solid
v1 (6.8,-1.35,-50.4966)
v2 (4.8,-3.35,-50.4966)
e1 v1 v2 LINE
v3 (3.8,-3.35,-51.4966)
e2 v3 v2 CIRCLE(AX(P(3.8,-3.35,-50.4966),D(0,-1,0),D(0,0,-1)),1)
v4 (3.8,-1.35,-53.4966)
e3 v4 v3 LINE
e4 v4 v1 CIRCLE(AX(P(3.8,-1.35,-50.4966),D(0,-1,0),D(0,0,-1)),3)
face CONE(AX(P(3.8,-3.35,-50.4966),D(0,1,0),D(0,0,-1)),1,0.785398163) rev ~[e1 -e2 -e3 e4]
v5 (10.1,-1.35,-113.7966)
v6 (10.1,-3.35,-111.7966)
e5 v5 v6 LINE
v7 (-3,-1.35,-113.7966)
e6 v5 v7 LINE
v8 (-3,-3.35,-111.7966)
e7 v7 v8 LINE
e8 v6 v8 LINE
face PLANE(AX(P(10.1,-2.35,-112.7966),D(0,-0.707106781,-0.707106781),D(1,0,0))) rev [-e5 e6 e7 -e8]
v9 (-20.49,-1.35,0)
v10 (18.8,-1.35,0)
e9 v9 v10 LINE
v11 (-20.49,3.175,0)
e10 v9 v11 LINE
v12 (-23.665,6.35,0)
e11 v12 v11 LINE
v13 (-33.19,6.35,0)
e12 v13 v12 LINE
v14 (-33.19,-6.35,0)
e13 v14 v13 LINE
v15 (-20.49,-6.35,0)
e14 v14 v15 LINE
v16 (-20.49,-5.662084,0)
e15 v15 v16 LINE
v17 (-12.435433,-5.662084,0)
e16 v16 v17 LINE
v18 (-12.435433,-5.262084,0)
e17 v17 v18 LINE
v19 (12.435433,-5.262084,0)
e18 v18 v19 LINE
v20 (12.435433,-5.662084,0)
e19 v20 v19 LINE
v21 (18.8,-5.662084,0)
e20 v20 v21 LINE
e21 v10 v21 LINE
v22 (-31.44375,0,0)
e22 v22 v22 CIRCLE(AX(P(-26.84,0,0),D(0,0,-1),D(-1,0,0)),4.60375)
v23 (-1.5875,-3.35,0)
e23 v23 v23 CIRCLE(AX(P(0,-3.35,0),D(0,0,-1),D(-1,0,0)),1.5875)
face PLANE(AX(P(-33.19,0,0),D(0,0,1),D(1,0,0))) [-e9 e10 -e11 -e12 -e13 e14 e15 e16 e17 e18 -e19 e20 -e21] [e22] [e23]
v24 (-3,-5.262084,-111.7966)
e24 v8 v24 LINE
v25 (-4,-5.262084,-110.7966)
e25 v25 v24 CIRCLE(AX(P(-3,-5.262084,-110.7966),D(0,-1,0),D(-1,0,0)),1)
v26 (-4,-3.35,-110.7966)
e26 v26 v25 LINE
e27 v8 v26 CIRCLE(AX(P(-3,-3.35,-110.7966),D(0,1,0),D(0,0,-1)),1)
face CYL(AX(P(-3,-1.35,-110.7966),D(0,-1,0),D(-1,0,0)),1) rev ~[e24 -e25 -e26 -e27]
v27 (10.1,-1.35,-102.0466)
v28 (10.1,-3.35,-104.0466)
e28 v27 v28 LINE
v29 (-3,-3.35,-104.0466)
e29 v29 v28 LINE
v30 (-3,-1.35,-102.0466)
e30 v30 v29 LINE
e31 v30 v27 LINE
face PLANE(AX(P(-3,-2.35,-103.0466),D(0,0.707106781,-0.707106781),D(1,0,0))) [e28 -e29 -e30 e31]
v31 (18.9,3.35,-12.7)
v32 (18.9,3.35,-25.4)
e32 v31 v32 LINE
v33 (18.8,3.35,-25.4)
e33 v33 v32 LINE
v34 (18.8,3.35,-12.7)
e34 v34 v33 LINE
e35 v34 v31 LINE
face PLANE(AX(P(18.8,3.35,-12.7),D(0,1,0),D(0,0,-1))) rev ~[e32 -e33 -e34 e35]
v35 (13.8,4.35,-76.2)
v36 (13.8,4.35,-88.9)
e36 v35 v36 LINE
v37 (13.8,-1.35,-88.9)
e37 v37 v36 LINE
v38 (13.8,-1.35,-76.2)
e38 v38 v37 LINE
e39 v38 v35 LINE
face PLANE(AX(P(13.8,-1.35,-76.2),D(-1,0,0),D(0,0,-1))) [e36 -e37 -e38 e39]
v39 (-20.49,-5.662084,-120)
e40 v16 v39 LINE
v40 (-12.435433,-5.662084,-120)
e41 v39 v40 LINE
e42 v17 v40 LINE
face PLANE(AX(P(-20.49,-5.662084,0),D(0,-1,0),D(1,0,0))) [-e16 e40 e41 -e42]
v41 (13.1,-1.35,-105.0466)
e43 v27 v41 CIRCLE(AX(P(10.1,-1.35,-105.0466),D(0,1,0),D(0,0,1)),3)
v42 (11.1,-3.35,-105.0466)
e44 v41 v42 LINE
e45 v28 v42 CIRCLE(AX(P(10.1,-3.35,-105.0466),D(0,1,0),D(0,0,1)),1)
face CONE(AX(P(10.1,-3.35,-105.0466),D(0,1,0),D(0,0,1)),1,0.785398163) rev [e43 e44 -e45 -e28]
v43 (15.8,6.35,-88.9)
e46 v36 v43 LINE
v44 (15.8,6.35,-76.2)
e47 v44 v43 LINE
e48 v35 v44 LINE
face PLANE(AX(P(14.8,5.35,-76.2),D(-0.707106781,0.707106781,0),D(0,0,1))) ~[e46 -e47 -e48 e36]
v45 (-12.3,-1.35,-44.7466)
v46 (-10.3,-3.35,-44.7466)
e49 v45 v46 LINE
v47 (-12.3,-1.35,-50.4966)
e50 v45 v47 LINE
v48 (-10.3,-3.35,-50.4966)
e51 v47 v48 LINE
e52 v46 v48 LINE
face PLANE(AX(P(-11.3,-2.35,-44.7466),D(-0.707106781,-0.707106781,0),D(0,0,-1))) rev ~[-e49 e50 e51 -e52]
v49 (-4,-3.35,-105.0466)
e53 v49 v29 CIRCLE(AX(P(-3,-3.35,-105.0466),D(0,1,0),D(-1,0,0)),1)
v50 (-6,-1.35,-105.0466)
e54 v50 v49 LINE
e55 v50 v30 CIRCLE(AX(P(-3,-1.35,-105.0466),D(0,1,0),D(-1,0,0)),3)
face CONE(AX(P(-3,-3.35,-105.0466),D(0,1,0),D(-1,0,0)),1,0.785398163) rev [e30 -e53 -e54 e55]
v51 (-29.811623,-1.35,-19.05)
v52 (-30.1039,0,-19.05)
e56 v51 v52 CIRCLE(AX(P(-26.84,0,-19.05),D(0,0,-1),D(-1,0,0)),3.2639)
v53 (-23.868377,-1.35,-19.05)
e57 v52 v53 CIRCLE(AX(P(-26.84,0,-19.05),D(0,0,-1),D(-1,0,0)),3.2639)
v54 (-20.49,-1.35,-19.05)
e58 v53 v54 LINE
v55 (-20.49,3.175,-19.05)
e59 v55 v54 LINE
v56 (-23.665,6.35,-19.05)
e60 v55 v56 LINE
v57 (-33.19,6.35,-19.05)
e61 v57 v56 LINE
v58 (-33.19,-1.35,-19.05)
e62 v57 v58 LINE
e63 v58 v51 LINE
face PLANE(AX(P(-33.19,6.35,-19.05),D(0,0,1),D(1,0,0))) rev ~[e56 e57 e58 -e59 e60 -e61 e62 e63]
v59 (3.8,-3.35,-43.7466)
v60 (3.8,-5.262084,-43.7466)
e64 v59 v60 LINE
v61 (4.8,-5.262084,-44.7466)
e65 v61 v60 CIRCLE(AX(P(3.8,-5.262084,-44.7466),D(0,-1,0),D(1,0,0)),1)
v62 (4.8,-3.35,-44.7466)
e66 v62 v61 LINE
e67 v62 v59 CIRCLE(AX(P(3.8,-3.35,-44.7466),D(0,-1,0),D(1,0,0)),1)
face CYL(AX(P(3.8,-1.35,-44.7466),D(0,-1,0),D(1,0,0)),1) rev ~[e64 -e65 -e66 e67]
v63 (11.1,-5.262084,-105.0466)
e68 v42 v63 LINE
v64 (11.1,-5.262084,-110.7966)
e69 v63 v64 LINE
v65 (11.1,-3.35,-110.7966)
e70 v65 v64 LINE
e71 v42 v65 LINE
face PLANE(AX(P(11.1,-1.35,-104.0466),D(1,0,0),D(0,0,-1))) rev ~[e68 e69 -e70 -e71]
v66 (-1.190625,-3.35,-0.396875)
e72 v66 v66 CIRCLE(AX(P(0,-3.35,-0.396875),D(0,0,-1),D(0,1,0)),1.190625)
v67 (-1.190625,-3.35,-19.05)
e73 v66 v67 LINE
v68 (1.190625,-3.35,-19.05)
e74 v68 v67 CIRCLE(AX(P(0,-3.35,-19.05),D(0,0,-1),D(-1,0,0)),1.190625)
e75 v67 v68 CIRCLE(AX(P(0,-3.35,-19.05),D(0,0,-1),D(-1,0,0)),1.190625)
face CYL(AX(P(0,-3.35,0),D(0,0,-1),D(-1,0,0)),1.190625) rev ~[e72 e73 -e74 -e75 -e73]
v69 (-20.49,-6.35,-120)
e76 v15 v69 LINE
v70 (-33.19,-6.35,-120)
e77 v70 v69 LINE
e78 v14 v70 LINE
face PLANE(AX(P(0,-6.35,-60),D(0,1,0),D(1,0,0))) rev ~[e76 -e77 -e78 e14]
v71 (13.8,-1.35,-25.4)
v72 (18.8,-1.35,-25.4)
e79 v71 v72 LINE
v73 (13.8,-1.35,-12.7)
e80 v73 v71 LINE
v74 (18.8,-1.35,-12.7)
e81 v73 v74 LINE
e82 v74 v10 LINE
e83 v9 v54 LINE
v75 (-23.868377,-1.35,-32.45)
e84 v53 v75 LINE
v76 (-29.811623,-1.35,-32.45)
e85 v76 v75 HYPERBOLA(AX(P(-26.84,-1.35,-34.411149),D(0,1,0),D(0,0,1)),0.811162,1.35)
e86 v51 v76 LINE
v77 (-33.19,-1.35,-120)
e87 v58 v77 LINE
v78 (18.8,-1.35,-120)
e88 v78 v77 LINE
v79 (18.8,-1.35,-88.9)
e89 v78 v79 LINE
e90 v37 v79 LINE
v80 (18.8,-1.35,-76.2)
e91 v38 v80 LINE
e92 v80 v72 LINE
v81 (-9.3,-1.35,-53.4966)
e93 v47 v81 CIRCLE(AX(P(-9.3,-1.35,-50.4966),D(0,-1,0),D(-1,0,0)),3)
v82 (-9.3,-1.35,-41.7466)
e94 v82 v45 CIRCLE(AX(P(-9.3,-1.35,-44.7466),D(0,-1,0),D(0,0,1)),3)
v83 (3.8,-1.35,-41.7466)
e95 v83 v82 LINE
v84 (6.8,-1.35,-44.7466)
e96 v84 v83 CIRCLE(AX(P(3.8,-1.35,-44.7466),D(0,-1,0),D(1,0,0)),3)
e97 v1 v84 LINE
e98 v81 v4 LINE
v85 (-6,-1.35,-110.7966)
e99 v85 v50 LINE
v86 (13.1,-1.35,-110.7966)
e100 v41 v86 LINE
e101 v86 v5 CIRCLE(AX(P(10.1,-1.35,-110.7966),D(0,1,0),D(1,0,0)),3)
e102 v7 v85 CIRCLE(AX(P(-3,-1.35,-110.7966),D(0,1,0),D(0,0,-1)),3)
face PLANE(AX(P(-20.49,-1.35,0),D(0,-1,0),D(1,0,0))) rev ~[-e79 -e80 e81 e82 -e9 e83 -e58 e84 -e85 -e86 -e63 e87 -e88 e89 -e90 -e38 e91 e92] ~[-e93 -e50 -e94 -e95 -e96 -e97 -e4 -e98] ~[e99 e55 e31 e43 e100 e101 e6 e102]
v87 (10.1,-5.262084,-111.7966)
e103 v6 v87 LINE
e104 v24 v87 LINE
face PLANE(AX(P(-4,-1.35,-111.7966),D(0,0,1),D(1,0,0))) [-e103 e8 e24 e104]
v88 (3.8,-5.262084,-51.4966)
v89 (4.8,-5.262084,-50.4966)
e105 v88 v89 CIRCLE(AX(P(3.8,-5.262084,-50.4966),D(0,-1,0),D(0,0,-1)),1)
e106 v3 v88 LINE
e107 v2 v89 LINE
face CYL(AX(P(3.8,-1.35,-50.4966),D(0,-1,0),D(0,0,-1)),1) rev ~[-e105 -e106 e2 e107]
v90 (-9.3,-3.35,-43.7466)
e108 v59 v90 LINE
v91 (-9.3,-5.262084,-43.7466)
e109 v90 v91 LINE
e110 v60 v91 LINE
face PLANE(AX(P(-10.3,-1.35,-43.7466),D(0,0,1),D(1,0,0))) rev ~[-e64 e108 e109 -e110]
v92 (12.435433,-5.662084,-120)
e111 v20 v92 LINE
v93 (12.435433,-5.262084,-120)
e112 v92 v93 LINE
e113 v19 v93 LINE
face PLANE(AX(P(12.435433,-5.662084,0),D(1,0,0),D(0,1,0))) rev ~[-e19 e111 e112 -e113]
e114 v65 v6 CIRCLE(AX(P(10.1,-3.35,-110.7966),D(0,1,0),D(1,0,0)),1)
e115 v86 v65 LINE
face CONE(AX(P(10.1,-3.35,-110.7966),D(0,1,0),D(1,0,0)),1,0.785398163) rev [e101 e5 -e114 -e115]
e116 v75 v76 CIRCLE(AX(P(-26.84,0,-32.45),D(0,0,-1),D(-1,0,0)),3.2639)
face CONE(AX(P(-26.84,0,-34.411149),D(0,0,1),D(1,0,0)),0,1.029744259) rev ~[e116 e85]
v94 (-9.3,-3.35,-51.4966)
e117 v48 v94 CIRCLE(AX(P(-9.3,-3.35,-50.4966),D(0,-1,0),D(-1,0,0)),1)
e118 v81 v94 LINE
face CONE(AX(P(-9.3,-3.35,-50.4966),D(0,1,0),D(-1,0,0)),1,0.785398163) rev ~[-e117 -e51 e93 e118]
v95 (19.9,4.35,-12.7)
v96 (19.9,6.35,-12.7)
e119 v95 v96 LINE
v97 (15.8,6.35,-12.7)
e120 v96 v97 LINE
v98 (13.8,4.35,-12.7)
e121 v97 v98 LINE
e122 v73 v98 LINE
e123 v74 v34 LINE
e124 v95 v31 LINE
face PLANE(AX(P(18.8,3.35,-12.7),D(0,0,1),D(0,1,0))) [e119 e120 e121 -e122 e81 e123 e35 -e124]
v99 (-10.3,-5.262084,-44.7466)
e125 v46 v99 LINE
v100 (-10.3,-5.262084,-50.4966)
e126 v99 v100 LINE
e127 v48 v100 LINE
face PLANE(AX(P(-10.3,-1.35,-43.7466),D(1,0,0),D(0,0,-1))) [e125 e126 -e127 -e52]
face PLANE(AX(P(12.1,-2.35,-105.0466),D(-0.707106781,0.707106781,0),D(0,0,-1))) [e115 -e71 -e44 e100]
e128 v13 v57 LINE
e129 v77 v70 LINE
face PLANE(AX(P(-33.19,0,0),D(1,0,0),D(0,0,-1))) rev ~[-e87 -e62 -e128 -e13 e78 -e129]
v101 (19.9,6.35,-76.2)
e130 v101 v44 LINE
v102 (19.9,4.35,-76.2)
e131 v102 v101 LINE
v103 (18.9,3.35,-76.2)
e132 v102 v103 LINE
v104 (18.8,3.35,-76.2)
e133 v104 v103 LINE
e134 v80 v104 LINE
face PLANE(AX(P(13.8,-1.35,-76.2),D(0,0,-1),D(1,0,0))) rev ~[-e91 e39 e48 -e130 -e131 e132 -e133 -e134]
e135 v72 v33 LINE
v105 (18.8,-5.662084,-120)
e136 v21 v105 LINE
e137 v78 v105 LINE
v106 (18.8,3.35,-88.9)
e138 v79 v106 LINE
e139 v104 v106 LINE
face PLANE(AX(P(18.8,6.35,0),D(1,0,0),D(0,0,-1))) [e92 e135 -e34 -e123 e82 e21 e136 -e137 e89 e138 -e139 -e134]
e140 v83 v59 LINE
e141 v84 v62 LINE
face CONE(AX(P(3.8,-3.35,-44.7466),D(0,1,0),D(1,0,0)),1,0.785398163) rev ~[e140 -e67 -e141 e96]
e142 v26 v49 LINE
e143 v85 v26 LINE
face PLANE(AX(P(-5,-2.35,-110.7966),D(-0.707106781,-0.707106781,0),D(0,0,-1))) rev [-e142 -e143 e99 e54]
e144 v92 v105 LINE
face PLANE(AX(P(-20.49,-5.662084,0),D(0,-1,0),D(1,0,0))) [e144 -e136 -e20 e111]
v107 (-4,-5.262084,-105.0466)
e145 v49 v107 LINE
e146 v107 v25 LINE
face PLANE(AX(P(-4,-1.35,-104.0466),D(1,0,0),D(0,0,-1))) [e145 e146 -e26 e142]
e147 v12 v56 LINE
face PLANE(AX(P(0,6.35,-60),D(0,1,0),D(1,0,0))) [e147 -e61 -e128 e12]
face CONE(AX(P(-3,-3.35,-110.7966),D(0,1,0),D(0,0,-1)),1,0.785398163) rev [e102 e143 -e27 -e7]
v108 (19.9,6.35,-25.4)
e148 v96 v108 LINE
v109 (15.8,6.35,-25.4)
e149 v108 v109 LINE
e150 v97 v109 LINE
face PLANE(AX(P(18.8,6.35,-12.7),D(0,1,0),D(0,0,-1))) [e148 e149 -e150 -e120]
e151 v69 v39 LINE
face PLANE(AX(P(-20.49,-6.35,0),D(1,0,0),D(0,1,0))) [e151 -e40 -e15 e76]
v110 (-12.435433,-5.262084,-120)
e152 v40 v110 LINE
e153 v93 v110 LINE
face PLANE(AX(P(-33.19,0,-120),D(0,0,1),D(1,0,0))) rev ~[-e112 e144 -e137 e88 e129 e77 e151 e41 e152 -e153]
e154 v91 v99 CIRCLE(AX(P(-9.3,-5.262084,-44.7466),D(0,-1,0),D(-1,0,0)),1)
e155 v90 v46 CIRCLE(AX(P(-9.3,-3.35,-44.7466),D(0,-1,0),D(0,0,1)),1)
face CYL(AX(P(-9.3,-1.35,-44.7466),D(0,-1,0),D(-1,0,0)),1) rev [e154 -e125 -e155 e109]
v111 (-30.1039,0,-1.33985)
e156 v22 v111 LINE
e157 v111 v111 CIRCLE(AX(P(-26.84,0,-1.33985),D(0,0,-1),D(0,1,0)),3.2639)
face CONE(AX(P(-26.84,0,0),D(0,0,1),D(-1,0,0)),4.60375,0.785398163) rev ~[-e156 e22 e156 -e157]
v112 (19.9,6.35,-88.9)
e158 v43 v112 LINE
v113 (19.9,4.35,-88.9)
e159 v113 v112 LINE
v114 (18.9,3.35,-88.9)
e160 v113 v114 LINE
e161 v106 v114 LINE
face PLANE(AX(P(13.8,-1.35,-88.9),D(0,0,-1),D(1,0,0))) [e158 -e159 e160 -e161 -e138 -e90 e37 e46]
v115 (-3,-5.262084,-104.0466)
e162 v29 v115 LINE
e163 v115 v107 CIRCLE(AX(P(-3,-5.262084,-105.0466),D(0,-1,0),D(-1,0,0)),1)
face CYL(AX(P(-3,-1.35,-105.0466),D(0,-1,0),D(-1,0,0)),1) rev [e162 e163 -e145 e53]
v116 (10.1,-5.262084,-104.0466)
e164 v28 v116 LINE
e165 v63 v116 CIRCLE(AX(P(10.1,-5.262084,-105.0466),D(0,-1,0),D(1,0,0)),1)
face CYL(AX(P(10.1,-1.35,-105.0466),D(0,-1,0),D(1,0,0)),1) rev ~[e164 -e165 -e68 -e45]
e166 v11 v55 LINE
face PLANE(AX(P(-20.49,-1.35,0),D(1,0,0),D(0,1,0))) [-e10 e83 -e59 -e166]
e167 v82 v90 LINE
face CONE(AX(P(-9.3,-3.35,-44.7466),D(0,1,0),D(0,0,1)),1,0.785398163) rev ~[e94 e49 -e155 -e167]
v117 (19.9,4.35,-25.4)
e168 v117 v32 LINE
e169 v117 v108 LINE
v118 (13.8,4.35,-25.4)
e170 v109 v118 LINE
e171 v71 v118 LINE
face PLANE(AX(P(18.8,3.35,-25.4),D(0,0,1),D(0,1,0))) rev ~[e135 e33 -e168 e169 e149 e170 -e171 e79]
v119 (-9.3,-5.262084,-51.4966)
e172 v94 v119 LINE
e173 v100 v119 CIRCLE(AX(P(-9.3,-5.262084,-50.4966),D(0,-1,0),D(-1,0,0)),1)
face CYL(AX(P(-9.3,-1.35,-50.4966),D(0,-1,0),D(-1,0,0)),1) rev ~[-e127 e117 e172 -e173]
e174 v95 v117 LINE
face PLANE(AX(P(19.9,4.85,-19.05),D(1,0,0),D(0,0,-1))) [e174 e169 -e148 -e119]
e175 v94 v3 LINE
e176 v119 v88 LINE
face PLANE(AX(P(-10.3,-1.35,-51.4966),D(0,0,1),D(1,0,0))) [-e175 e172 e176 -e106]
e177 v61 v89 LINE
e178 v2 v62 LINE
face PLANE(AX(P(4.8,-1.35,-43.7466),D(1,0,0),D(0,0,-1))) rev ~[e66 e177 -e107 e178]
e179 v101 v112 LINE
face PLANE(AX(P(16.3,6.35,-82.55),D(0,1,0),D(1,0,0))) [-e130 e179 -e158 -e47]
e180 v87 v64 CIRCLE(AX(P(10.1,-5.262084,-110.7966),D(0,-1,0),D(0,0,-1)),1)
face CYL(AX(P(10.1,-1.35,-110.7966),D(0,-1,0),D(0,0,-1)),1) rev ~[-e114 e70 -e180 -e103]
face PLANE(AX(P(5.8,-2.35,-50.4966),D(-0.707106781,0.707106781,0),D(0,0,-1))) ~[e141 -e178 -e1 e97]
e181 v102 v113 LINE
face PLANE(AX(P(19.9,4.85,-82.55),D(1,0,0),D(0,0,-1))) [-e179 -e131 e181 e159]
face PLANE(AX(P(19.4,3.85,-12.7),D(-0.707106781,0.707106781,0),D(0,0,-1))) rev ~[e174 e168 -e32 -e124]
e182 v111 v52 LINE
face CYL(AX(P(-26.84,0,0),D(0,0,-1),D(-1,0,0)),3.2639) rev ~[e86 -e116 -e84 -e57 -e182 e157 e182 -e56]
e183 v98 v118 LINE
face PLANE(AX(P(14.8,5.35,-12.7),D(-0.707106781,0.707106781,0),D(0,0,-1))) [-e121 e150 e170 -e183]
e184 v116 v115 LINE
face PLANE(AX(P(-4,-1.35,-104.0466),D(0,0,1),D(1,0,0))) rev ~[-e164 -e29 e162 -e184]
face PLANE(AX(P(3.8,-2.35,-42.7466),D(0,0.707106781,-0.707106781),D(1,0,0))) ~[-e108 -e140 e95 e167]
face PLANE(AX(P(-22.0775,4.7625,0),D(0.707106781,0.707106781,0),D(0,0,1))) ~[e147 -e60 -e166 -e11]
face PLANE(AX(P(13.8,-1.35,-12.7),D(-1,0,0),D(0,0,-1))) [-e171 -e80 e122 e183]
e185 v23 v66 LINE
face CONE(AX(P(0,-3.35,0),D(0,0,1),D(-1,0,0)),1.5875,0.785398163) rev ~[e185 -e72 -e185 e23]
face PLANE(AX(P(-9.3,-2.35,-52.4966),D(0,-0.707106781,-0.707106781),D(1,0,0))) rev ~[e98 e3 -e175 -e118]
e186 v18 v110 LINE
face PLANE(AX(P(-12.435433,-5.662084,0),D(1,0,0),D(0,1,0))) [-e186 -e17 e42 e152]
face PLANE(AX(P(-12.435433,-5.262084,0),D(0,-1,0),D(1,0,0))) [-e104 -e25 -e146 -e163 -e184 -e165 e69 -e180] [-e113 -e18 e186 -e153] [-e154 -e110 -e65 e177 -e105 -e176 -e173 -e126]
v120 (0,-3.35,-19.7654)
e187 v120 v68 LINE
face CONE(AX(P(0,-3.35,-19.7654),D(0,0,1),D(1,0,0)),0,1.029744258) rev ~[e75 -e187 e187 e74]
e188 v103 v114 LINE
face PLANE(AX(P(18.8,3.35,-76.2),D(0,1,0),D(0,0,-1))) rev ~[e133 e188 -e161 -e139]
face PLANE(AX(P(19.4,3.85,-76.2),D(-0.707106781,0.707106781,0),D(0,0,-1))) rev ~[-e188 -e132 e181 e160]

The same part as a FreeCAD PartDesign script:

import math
import FreeCAD as App
import Part
import Sketcher


def edges_at(feature, points):
    """Names of the edges that pass closest to the given points."""
    edges = feature.Shape.Edges
    near = lambda p: min(range(len(edges)), key=lambda i: edges[i].distToShape(Part.Vertex(*p))[0])
    return sorted({f"Edge{near(p) + 1}" for p in points})

doc = App.newDocument("Part")
params = doc.addObject("Spreadsheet::Sheet", "Params")
for row, (alias, value) in enumerate([
    ("sketch1_height", "120 mm"),
    ("sketch1_width", "66.38 mm"),
    ("pad1_length", "12.7 mm"),
    ("sketch2_height", "7.7 mm"),
    ("sketch2_width", "40.98 mm"),
    ("hole_diameter", "2.38125 mm"),
    ("hole_depth", "19.05 mm"),
    ("hole_csink_diameter", "3.175 mm"),
    ("sketch4_radius", "193.5 mm"),
    ("hole2_diameter", "6.5278 mm"),
    ("hole2_depth", "32.45 mm"),
    ("hole2_csink_diameter", "9.2075 mm"),
    ("chamfer_size", "3.175 mm"),
    ("sketch6_width", "15.1 mm"),
    ("sketch6_height", "7.75 mm"),
    ("fillet_radius", "1 mm"),
    ("sketch7_height", "120 mm"),
    ("sketch7_width", "14.39 mm"),
    ("sketch8_width", "5 mm"),
    ("sketch8_height", "12.7 mm"),
    ("pad2_length", "7.7 mm"),
    ("sketch9_width", "3 mm"),
    ("sketch9_height", "12.7 mm"),
    ("pad3_length", "1.1 mm"),
    ("chamfer2_size", "1 mm"),
    ("chamfer3_size", "2 mm"),
    ("sketch10_width", "12.7 mm"),
    ("sketch10_height", "100.95 mm"),
    ("pocket5_length", "7.7 mm"),
    ("sketch11_height", "0.4 mm"),
    ("sketch12_width", "40.98 mm"),
    ("chamfer4_size", "2 mm"),
], start=1):
    params.set(f"A{row}", alias)
    params.set(f"B{row}", "=" + value)
    params.setAlias(f"B{row}", alias)

body = doc.addObject("PartDesign::Body", "Body")

# Sketch on XZ plane
sketch1 = body.newObject("Sketcher::SketchObject", "Sketch")
sketch1.AttachmentSupport = (doc.getObject("XZ_Plane"), [""])
sketch1.MapMode = "FlatFace"
sketch1.addGeometry(Part.LineSegment(App.Vector(-33.19, -120, 0), App.Vector(-33.19, 0, 0)), False)
sketch1.addGeometry(Part.LineSegment(App.Vector(-33.19, 0, 0), App.Vector(33.19, 0, 0)), False)
sketch1.addGeometry(Part.LineSegment(App.Vector(33.19, 0, 0), App.Vector(33.19, -120, 0)), False)
sketch1.addGeometry(Part.LineSegment(App.Vector(33.19, -120, 0), App.Vector(-33.19, -120, 0)), False)
sketch1.addConstraint(Sketcher.Constraint("Coincident", 0, 2, 1, 1))
sketch1.addConstraint(Sketcher.Constraint("Coincident", 1, 2, 2, 1))
sketch1.addConstraint(Sketcher.Constraint("Coincident", 2, 2, 3, 1))
sketch1.addConstraint(Sketcher.Constraint("Coincident", 3, 2, 0, 1))
sketch1.addConstraint(Sketcher.Constraint("Vertical", 0))
sketch1.addConstraint(Sketcher.Constraint("Horizontal", 1))
sketch1.addConstraint(Sketcher.Constraint("Vertical", 2))
sketch1.addConstraint(Sketcher.Constraint("Horizontal", 3))
sketch1.addConstraint(Sketcher.Constraint("Symmetric", 0, 2, 1, 2, -1, 1))
sketch1.addConstraint(Sketcher.Constraint("DistanceY", 0, 1, 0, 2, 120.0))
sketch1.addConstraint(Sketcher.Constraint("DistanceX", 1, 1, 1, 2, 66.38))
sketch1.setExpression("Constraints[9]", "Params.sketch1_height")
sketch1.setExpression("Constraints[10]", "Params.sketch1_width")
pad1 = body.newObject("PartDesign::Pad", "Pad")
pad1.Profile = sketch1
pad1.setExpression("Length", "Params.pad1_length")
pad1.Midplane = True

# Sketch on XY plane
sketch2 = body.newObject("Sketcher::SketchObject", "Sketch001")
sketch2.AttachmentSupport = (doc.getObject("XY_Plane"), [""])
sketch2.MapMode = "FlatFace"
sketch2.addGeometry(Part.LineSegment(App.Vector(-20.49, 6.35, 0), App.Vector(-20.49, -1.35, 0)), False)
sketch2.addGeometry(Part.LineSegment(App.Vector(-20.49, -1.35, 0), App.Vector(20.49, -1.35, 0)), False)
sketch2.addGeometry(Part.LineSegment(App.Vector(20.49, -1.35, 0), App.Vector(20.49, 6.35, 0)), False)
sketch2.addGeometry(Part.LineSegment(App.Vector(20.49, 6.35, 0), App.Vector(-20.49, 6.35, 0)), False)
sketch2.addConstraint(Sketcher.Constraint("Coincident", 0, 2, 1, 1))
sketch2.addConstraint(Sketcher.Constraint("Coincident", 1, 2, 2, 1))
sketch2.addConstraint(Sketcher.Constraint("Coincident", 2, 2, 3, 1))
sketch2.addConstraint(Sketcher.Constraint("Coincident", 3, 2, 0, 1))
sketch2.addConstraint(Sketcher.Constraint("Vertical", 0))
sketch2.addConstraint(Sketcher.Constraint("Horizontal", 1))
sketch2.addConstraint(Sketcher.Constraint("Vertical", 2))
sketch2.addConstraint(Sketcher.Constraint("Horizontal", 3))
sketch2.addConstraint(Sketcher.Constraint("DistanceY", 0, 2, 0, 1, 7.7))
sketch2.addConstraint(Sketcher.Constraint("DistanceX", 1, 1, 1, 2, 40.98))
sketch2.addConstraint(Sketcher.Constraint("DistanceX", 0, 2, -1, 1, 20.49))
sketch2.addConstraint(Sketcher.Constraint("DistanceY", 0, 2, -1, 1, 1.35))
sketch2.setExpression("Constraints[8]", "Params.sketch2_height")
sketch2.setExpression("Constraints[9]", "Params.sketch2_width")
pocket1 = body.newObject("PartDesign::Pocket", "Pocket")
pocket1.Profile = sketch2
pocket1.Type = "ThroughAll"

# Sketch on XY plane
sketch3 = body.newObject("Sketcher::SketchObject", "Sketch002")
sketch3.AttachmentSupport = (doc.getObject("XY_Plane"), [""])
sketch3.MapMode = "FlatFace"
sketch3.addGeometry(Part.Circle(App.Vector(0, -3.35, 0), App.Vector(0, 0, 1), 1.190625), False)
sketch3.addConstraint(Sketcher.Constraint("PointOnObject", 0, 3, -2))
sketch3.addConstraint(Sketcher.Constraint("Diameter", 0, 2.38125))
sketch3.addConstraint(Sketcher.Constraint("DistanceY", 0, 3, -1, 1, 3.35))
doc.recompute()
hole = body.newObject("PartDesign::Hole", "Hole")
hole.Profile = sketch3
hole.ThreadType = "None"
hole.setExpression("Diameter", "Params.hole_diameter")
hole.DepthType = "Dimension"
hole.setExpression("Depth", "Params.hole_depth")
hole.DrillPoint = "Angled"
hole.DrillPointAngle = 118
hole.HoleCutType = "Countersink"
hole.setExpression("HoleCutDiameter", "Params.hole_csink_diameter")
hole.HoleCutCountersinkAngle = 90

# Sketch on XY plane
sketch4 = body.newObject("Sketcher::SketchObject", "Sketch003")
sketch4.AttachmentSupport = (doc.getObject("XY_Plane"), [""])
sketch4.MapMode = "FlatFace"
sketch4.addGeometry(Part.LineSegment(App.Vector(-20.49, -6.35, 0), App.Vector(-140.137252, -19.091259, 0)), False)
sketch4.addGeometry(Part.LineSegment(App.Vector(-140.137252, -19.091259, 0), App.Vector(-140.137252, -259.738757, 0)), False)
sketch4.addGeometry(Part.LineSegment(App.Vector(-140.137252, -259.738757, 0), App.Vector(140.137252, -259.738757, 0)), False)
sketch4.addGeometry(Part.LineSegment(App.Vector(140.137252, -259.738757, 0), App.Vector(140.137252, -19.091259, 0)), False)
sketch4.addGeometry(Part.LineSegment(App.Vector(140.137252, -19.091259, 0), App.Vector(20.49, -6.35, 0)), False)
sketch4.addGeometry(Part.ArcOfCircle(Part.Circle(App.Vector(0, -198.762084, 0), App.Vector(0, 0, 1), 193.5), math.radians(83.921469), math.radians(96.078531)), False)
sketch4.addConstraint(Sketcher.Constraint("Coincident", 0, 2, 1, 1))
sketch4.addConstraint(Sketcher.Constraint("Coincident", 1, 2, 2, 1))
sketch4.addConstraint(Sketcher.Constraint("Coincident", 2, 2, 3, 1))
sketch4.addConstraint(Sketcher.Constraint("Coincident", 3, 2, 4, 1))
sketch4.addConstraint(Sketcher.Constraint("Tangent", 4, 2, 5, 1))
sketch4.addConstraint(Sketcher.Constraint("Tangent", 5, 2, 0, 1))
sketch4.addConstraint(Sketcher.Constraint("Vertical", 1))
sketch4.addConstraint(Sketcher.Constraint("Horizontal", 2))
sketch4.addConstraint(Sketcher.Constraint("Vertical", 3))
sketch4.addConstraint(Sketcher.Constraint("Symmetric", 0, 2, 3, 2, -2))
sketch4.addConstraint(Sketcher.Constraint("PointOnObject", 5, 3, -2))
sketch4.addConstraint(Sketcher.Constraint("Radius", 5, 193.5))
sketch4.addConstraint(Sketcher.Constraint("DistanceX", -1, 1, 4, 2, 20.49))
sketch4.addConstraint(Sketcher.Constraint("DistanceY", 4, 2, -1, 1, 6.35))
sketch4.addConstraint(Sketcher.Constraint("DistanceY", 1, 2, 1, 1, 240.647498))
sketch4.addConstraint(Sketcher.Constraint("Distance", 0, 120.323749))
sketch4.setExpression("Constraints[11]", "Params.sketch4_radius")
pocket2 = body.newObject("PartDesign::Pocket", "Pocket001")
pocket2.Profile = sketch4
pocket2.Type = "ThroughAll"
pocket2.Midplane = True

# Sketch on XY plane
sketch5 = body.newObject("Sketcher::SketchObject", "Sketch004")
sketch5.AttachmentSupport = (doc.getObject("XY_Plane"), [""])
sketch5.MapMode = "FlatFace"
sketch5.addGeometry(Part.Circle(App.Vector(-26.84, 0, 0), App.Vector(0, 0, 1), 3.2639), False)
sketch5.addConstraint(Sketcher.Constraint("PointOnObject", 0, 3, -1))
sketch5.addConstraint(Sketcher.Constraint("Diameter", 0, 6.5278))
sketch5.addConstraint(Sketcher.Constraint("DistanceX", 0, 3, -1, 1, 26.84))
doc.recompute()
hole2 = body.newObject("PartDesign::Hole", "Hole001")
hole2.Profile = sketch5
hole2.ThreadType = "None"
hole2.setExpression("Diameter", "Params.hole2_diameter")
hole2.DepthType = "Dimension"
hole2.setExpression("Depth", "Params.hole2_depth")
hole2.DrillPoint = "Angled"
hole2.DrillPointAngle = 118
hole2.HoleCutType = "Countersink"
hole2.setExpression("HoleCutDiameter", "Params.hole2_csink_diameter")
hole2.HoleCutCountersinkAngle = 90
doc.recompute()

chamfer = body.newObject("PartDesign::Chamfer", "Chamfer")
chamfer.Base = (hole2, edges_at(hole2, [(-20.49, 6.35, -60)]))
chamfer.setExpression("Size", "Params.chamfer_size")

# Sketch on XZ plane
sketch6 = body.newObject("Sketcher::SketchObject", "Sketch005")
sketch6.AttachmentSupport = (doc.getObject("XZ_Plane"), [""])
sketch6.MapMode = "FlatFace"
sketch6.AttachmentOffset = App.Placement(App.Vector(0, 0, 1.35), App.Rotation())
sketch6.addGeometry(Part.LineSegment(App.Vector(-4, -111.7966, 0), App.Vector(-4, -104.0466, 0)), False)
sketch6.addGeometry(Part.LineSegment(App.Vector(-4, -104.0466, 0), App.Vector(11.1, -104.0466, 0)), False)
sketch6.addGeometry(Part.LineSegment(App.Vector(11.1, -104.0466, 0), App.Vector(11.1, -111.7966, 0)), False)
sketch6.addGeometry(Part.LineSegment(App.Vector(11.1, -111.7966, 0), App.Vector(-4, -111.7966, 0)), False)
sketch6.addGeometry(Part.LineSegment(App.Vector(-10.3, -51.4966, 0), App.Vector(-10.3, -43.7466, 0)), False)
sketch6.addGeometry(Part.LineSegment(App.Vector(-10.3, -43.7466, 0), App.Vector(4.8, -43.7466, 0)), False)
sketch6.addGeometry(Part.LineSegment(App.Vector(4.8, -43.7466, 0), App.Vector(4.8, -51.4966, 0)), False)
sketch6.addGeometry(Part.LineSegment(App.Vector(4.8, -51.4966, 0), App.Vector(-10.3, -51.4966, 0)), False)
sketch6.addConstraint(Sketcher.Constraint("Coincident", 0, 2, 1, 1))
sketch6.addConstraint(Sketcher.Constraint("Coincident", 1, 2, 2, 1))
sketch6.addConstraint(Sketcher.Constraint("Coincident", 2, 2, 3, 1))
sketch6.addConstraint(Sketcher.Constraint("Coincident", 3, 2, 0, 1))
sketch6.addConstraint(Sketcher.Constraint("Coincident", 4, 2, 5, 1))
sketch6.addConstraint(Sketcher.Constraint("Coincident", 5, 2, 6, 1))
sketch6.addConstraint(Sketcher.Constraint("Coincident", 6, 2, 7, 1))
sketch6.addConstraint(Sketcher.Constraint("Coincident", 7, 2, 4, 1))
sketch6.addConstraint(Sketcher.Constraint("Vertical", 0))
sketch6.addConstraint(Sketcher.Constraint("Horizontal", 1))
sketch6.addConstraint(Sketcher.Constraint("Vertical", 2))
sketch6.addConstraint(Sketcher.Constraint("Horizontal", 3))
sketch6.addConstraint(Sketcher.Constraint("Vertical", 4))
sketch6.addConstraint(Sketcher.Constraint("Horizontal", 5))
sketch6.addConstraint(Sketcher.Constraint("Vertical", 6))
sketch6.addConstraint(Sketcher.Constraint("Horizontal", 7))
sketch6.addConstraint(Sketcher.Constraint("Equal", 3, 5))
sketch6.addConstraint(Sketcher.Constraint("Equal", 2, 4))
sketch6.addConstraint(Sketcher.Constraint("DistanceX", 1, 1, 1, 2, 15.1))
sketch6.addConstraint(Sketcher.Constraint("DistanceX", 0, 2, -1, 1, 4.0))
sketch6.addConstraint(Sketcher.Constraint("DistanceY", 0, 1, 0, 2, 7.75))
sketch6.addConstraint(Sketcher.Constraint("DistanceX", 4, 2, -1, 1, 10.3))
sketch6.addConstraint(Sketcher.Constraint("DistanceY", 0, 2, 4, 2, 60.3))
sketch6.addConstraint(Sketcher.Constraint("DistanceY", 0, 2, -1, 1, 104.0466))
sketch6.setExpression("Constraints[18]", "Params.sketch6_width")
sketch6.setExpression("Constraints[20]", "Params.sketch6_height")
pocket3 = body.newObject("PartDesign::Pocket", "Pocket002")
pocket3.Profile = sketch6
pocket3.Type = "ThroughAll"
pocket3.Reversed = True
doc.recompute()

fillet = body.newObject("PartDesign::Fillet", "Fillet")
fillet.Base = (pocket3, edges_at(pocket3, [
    (11.1, -3.465, -111.797),
    (11.1, -3.465, -104.047),
    (-4, -3.327, -104.047),
    (-4, -3.327, -111.797),
    (4.8, -3.336, -51.497),
    (4.8, -3.336, -43.747),
    (-10.3, -3.443, -43.747),
    (-10.3, -3.443, -51.497),
]))
fillet.setExpression("Radius", "Params.fillet_radius")

# Sketch on XZ plane
sketch7 = body.newObject("Sketcher::SketchObject", "Sketch006")
sketch7.AttachmentSupport = (doc.getObject("XZ_Plane"), [""])
sketch7.MapMode = "FlatFace"
sketch7.AttachmentOffset = App.Placement(App.Vector(0, 0, -6.35), App.Rotation())
sketch7.addGeometry(Part.LineSegment(App.Vector(18.8, -120, 0), App.Vector(18.8, 0, 0)), False)
sketch7.addGeometry(Part.LineSegment(App.Vector(18.8, 0, 0), App.Vector(33.19, 0, 0)), False)
sketch7.addGeometry(Part.LineSegment(App.Vector(33.19, 0, 0), App.Vector(33.19, -120, 0)), False)
sketch7.addGeometry(Part.LineSegment(App.Vector(33.19, -120, 0), App.Vector(18.8, -120, 0)), False)
sketch7.addConstraint(Sketcher.Constraint("Coincident", 0, 2, 1, 1))
sketch7.addConstraint(Sketcher.Constraint("Coincident", 1, 2, 2, 1))
sketch7.addConstraint(Sketcher.Constraint("Coincident", 2, 2, 3, 1))
sketch7.addConstraint(Sketcher.Constraint("Coincident", 3, 2, 0, 1))
sketch7.addConstraint(Sketcher.Constraint("Vertical", 0))
sketch7.addConstraint(Sketcher.Constraint("Horizontal", 1))
sketch7.addConstraint(Sketcher.Constraint("Vertical", 2))
sketch7.addConstraint(Sketcher.Constraint("Horizontal", 3))
sketch7.addConstraint(Sketcher.Constraint("PointOnObject", 0, 2, -1))
sketch7.addConstraint(Sketcher.Constraint("DistanceY", 0, 1, 0, 2, 120.0))
sketch7.addConstraint(Sketcher.Constraint("DistanceX", 1, 1, 1, 2, 14.39))
sketch7.addConstraint(Sketcher.Constraint("DistanceX", -1, 1, 0, 2, 18.8))
sketch7.setExpression("Constraints[9]", "Params.sketch7_height")
sketch7.setExpression("Constraints[10]", "Params.sketch7_width")
pocket4 = body.newObject("PartDesign::Pocket", "Pocket003")
pocket4.Profile = sketch7
pocket4.Type = "ThroughAll"
pocket4.Reversed = True

# Sketch on XZ plane
sketch8 = body.newObject("Sketcher::SketchObject", "Sketch007")
sketch8.AttachmentSupport = (doc.getObject("XZ_Plane"), [""])
sketch8.MapMode = "FlatFace"
sketch8.AttachmentOffset = App.Placement(App.Vector(0, 0, 1.35), App.Rotation())
sketch8.addGeometry(Part.LineSegment(App.Vector(13.8, -25.4, 0), App.Vector(13.8, -12.7, 0)), False)
sketch8.addGeometry(Part.LineSegment(App.Vector(13.8, -12.7, 0), App.Vector(18.8, -12.7, 0)), False)
sketch8.addGeometry(Part.LineSegment(App.Vector(18.8, -12.7, 0), App.Vector(18.8, -25.4, 0)), False)
sketch8.addGeometry(Part.LineSegment(App.Vector(18.8, -25.4, 0), App.Vector(13.8, -25.4, 0)), False)
sketch8.addGeometry(Part.LineSegment(App.Vector(13.8, -88.9, 0), App.Vector(13.8, -76.2, 0)), False)
sketch8.addGeometry(Part.LineSegment(App.Vector(13.8, -76.2, 0), App.Vector(18.8, -76.2, 0)), False)
sketch8.addGeometry(Part.LineSegment(App.Vector(18.8, -76.2, 0), App.Vector(18.8, -88.9, 0)), False)
sketch8.addGeometry(Part.LineSegment(App.Vector(18.8, -88.9, 0), App.Vector(13.8, -88.9, 0)), False)
sketch8.addConstraint(Sketcher.Constraint("Coincident", 0, 2, 1, 1))
sketch8.addConstraint(Sketcher.Constraint("Coincident", 1, 2, 2, 1))
sketch8.addConstraint(Sketcher.Constraint("Coincident", 2, 2, 3, 1))
sketch8.addConstraint(Sketcher.Constraint("Coincident", 3, 2, 0, 1))
sketch8.addConstraint(Sketcher.Constraint("Coincident", 4, 2, 5, 1))
sketch8.addConstraint(Sketcher.Constraint("Coincident", 5, 2, 6, 1))
sketch8.addConstraint(Sketcher.Constraint("Coincident", 6, 2, 7, 1))
sketch8.addConstraint(Sketcher.Constraint("Coincident", 7, 2, 4, 1))
sketch8.addConstraint(Sketcher.Constraint("Vertical", 0))
sketch8.addConstraint(Sketcher.Constraint("Horizontal", 1))
sketch8.addConstraint(Sketcher.Constraint("Vertical", 2))
sketch8.addConstraint(Sketcher.Constraint("Horizontal", 3))
sketch8.addConstraint(Sketcher.Constraint("Vertical", 4))
sketch8.addConstraint(Sketcher.Constraint("Horizontal", 5))
sketch8.addConstraint(Sketcher.Constraint("Vertical", 6))
sketch8.addConstraint(Sketcher.Constraint("Horizontal", 7))
sketch8.addConstraint(Sketcher.Constraint("Vertical", 3, 2, 4, 2))
sketch8.addConstraint(Sketcher.Constraint("Vertical", 2, 2, 5, 2))
sketch8.addConstraint(Sketcher.Constraint("Equal", 2, 4))
sketch8.addConstraint(Sketcher.Constraint("DistanceX", 1, 1, 1, 2, 5.0))
sketch8.addConstraint(Sketcher.Constraint("DistanceY", 0, 1, 0, 2, 12.7))
sketch8.addConstraint(Sketcher.Constraint("DistanceX", -1, 1, 0, 2, 13.8))
sketch8.addConstraint(Sketcher.Constraint("DistanceY", 0, 2, -1, 1, 12.7))
sketch8.addConstraint(Sketcher.Constraint("DistanceY", 4, 2, -1, 1, 76.2))
sketch8.setExpression("Constraints[19]", "Params.sketch8_width")
sketch8.setExpression("Constraints[20]", "Params.sketch8_height")
pad2 = body.newObject("PartDesign::Pad", "Pad001")
pad2.Profile = sketch8
pad2.setExpression("Length", "Params.pad2_length")
pad2.Reversed = True

# Sketch on YZ plane
sketch9 = body.newObject("Sketcher::SketchObject", "Sketch008")
sketch9.AttachmentSupport = (doc.getObject("YZ_Plane"), [""])
sketch9.MapMode = "FlatFace"
sketch9.AttachmentOffset = App.Placement(App.Vector(0, 0, 18.8), App.Rotation())
sketch9.addGeometry(Part.LineSegment(App.Vector(6.35, -12.7, 0), App.Vector(3.35, -12.7, 0)), False)
sketch9.addGeometry(Part.LineSegment(App.Vector(3.35, -12.7, 0), App.Vector(3.35, -25.4, 0)), False)
sketch9.addGeometry(Part.LineSegment(App.Vector(3.35, -25.4, 0), App.Vector(6.35, -25.4, 0)), False)
sketch9.addGeometry(Part.LineSegment(App.Vector(6.35, -25.4, 0), App.Vector(6.35, -12.7, 0)), False)
sketch9.addGeometry(Part.LineSegment(App.Vector(6.35, -76.2, 0), App.Vector(3.35, -76.2, 0)), False)
sketch9.addGeometry(Part.LineSegment(App.Vector(3.35, -76.2, 0), App.Vector(3.35, -88.9, 0)), False)
sketch9.addGeometry(Part.LineSegment(App.Vector(3.35, -88.9, 0), App.Vector(6.35, -88.9, 0)), False)
sketch9.addGeometry(Part.LineSegment(App.Vector(6.35, -88.9, 0), App.Vector(6.35, -76.2, 0)), False)
sketch9.addConstraint(Sketcher.Constraint("Coincident", 0, 2, 1, 1))
sketch9.addConstraint(Sketcher.Constraint("Coincident", 1, 2, 2, 1))
sketch9.addConstraint(Sketcher.Constraint("Coincident", 2, 2, 3, 1))
sketch9.addConstraint(Sketcher.Constraint("Coincident", 3, 2, 0, 1))
sketch9.addConstraint(Sketcher.Constraint("Coincident", 4, 2, 5, 1))
sketch9.addConstraint(Sketcher.Constraint("Coincident", 5, 2, 6, 1))
sketch9.addConstraint(Sketcher.Constraint("Coincident", 6, 2, 7, 1))
sketch9.addConstraint(Sketcher.Constraint("Coincident", 7, 2, 4, 1))
sketch9.addConstraint(Sketcher.Constraint("Horizontal", 0))
sketch9.addConstraint(Sketcher.Constraint("Vertical", 1))
sketch9.addConstraint(Sketcher.Constraint("Horizontal", 2))
sketch9.addConstraint(Sketcher.Constraint("Vertical", 3))
sketch9.addConstraint(Sketcher.Constraint("Horizontal", 4))
sketch9.addConstraint(Sketcher.Constraint("Vertical", 5))
sketch9.addConstraint(Sketcher.Constraint("Horizontal", 6))
sketch9.addConstraint(Sketcher.Constraint("Vertical", 7))
sketch9.addConstraint(Sketcher.Constraint("Vertical", 1, 2, 4, 2))
sketch9.addConstraint(Sketcher.Constraint("Vertical", 3, 2, 6, 2))
sketch9.addConstraint(Sketcher.Constraint("Equal", 3, 5))
sketch9.addConstraint(Sketcher.Constraint("DistanceX", 0, 2, 0, 1, 3.0))
sketch9.addConstraint(Sketcher.Constraint("DistanceY", 1, 2, 1, 1, 12.7))
sketch9.addConstraint(Sketcher.Constraint("DistanceY", 0, 2, -1, 1, 12.7))
sketch9.addConstraint(Sketcher.Constraint("DistanceY", 4, 2, -1, 1, 76.2))
sketch9.addConstraint(Sketcher.Constraint("DistanceX", -1, 1, 0, 2, 3.35))
sketch9.setExpression("Constraints[19]", "Params.sketch9_width")
sketch9.setExpression("Constraints[20]", "Params.sketch9_height")
pad3 = body.newObject("PartDesign::Pad", "Pad002")
pad3.Profile = sketch9
pad3.setExpression("Length", "Params.pad3_length")
doc.recompute()

chamfer2 = body.newObject("PartDesign::Chamfer", "Chamfer001")
chamfer2.Base = (pad3, edges_at(pad3, [(19.9, 3.35, -82.55), (19.9, 3.35, -19.05)]))
chamfer2.setExpression("Size", "Params.chamfer2_size")
doc.recompute()

chamfer3 = body.newObject("PartDesign::Chamfer", "Chamfer002")
chamfer3.Base = (chamfer2, edges_at(chamfer2, [(13.8, 6.35, -19.05), (13.8, 6.35, -82.55)]))
chamfer3.setExpression("Size", "Params.chamfer3_size")

# Sketch on XZ plane
sketch10 = body.newObject("Sketcher::SketchObject", "Sketch009")
sketch10.AttachmentSupport = (doc.getObject("XZ_Plane"), [""])
sketch10.MapMode = "FlatFace"
sketch10.AttachmentOffset = App.Placement(App.Vector(0, 0, -6.35), App.Rotation())
sketch10.addGeometry(Part.LineSegment(App.Vector(-33.19, -120, 0), App.Vector(-33.19, -19.05, 0)), False)
sketch10.addGeometry(Part.LineSegment(App.Vector(-33.19, -19.05, 0), App.Vector(-20.49, -19.05, 0)), False)
sketch10.addGeometry(Part.LineSegment(App.Vector(-20.49, -19.05, 0), App.Vector(-20.49, -120, 0)), False)
sketch10.addGeometry(Part.LineSegment(App.Vector(-20.49, -120, 0), App.Vector(-33.19, -120, 0)), False)
sketch10.addConstraint(Sketcher.Constraint("Coincident", 0, 2, 1, 1))
sketch10.addConstraint(Sketcher.Constraint("Coincident", 1, 2, 2, 1))
sketch10.addConstraint(Sketcher.Constraint("Coincident", 2, 2, 3, 1))
sketch10.addConstraint(Sketcher.Constraint("Coincident", 3, 2, 0, 1))
sketch10.addConstraint(Sketcher.Constraint("Vertical", 0))
sketch10.addConstraint(Sketcher.Constraint("Horizontal", 1))
sketch10.addConstraint(Sketcher.Constraint("Vertical", 2))
sketch10.addConstraint(Sketcher.Constraint("Horizontal", 3))
sketch10.addConstraint(Sketcher.Constraint("DistanceX", 1, 1, 1, 2, 12.7))
sketch10.addConstraint(Sketcher.Constraint("DistanceY", 2, 2, -1, 1, 120.0))
sketch10.addConstraint(Sketcher.Constraint("DistanceY", 0, 1, 0, 2, 100.95))
sketch10.addConstraint(Sketcher.Constraint("DistanceX", 0, 2, -1, 1, 33.19))
sketch10.setExpression("Constraints[8]", "Params.sketch10_width")
sketch10.setExpression("Constraints[10]", "Params.sketch10_height")
pocket5 = body.newObject("PartDesign::Pocket", "Pocket004")
pocket5.Profile = sketch10
pocket5.setExpression("Length", "Params.pocket5_length")
pocket5.Reversed = True

# Sketch on XY plane
sketch11 = body.newObject("Sketcher::SketchObject", "Sketch010")
sketch11.AttachmentSupport = (doc.getObject("XY_Plane"), [""])
sketch11.MapMode = "FlatFace"
sketch11.addGeometry(Part.LineSegment(App.Vector(-12.435433, -5.262084, 0), App.Vector(-12.435433, -5.662084, 0)), False)
sketch11.addGeometry(Part.LineSegment(App.Vector(-12.435433, -5.662084, 0), App.Vector(12.435433, -5.662084, 0)), False)
sketch11.addGeometry(Part.LineSegment(App.Vector(12.435433, -5.662084, 0), App.Vector(12.435433, -5.262084, 0)), False)
sketch11.addGeometry(Part.LineSegment(App.Vector(12.435433, -5.262084, 0), App.Vector(-12.435433, -5.262084, 0)), False)
sketch11.addConstraint(Sketcher.Constraint("Coincident", 0, 2, 1, 1))
sketch11.addConstraint(Sketcher.Constraint("Coincident", 1, 2, 2, 1))
sketch11.addConstraint(Sketcher.Constraint("Coincident", 2, 2, 3, 1))
sketch11.addConstraint(Sketcher.Constraint("Coincident", 3, 2, 0, 1))
sketch11.addConstraint(Sketcher.Constraint("Vertical", 0))
sketch11.addConstraint(Sketcher.Constraint("Horizontal", 1))
sketch11.addConstraint(Sketcher.Constraint("Vertical", 2))
sketch11.addConstraint(Sketcher.Constraint("Horizontal", 3))
sketch11.addConstraint(Sketcher.Constraint("DistanceY", 0, 2, 0, 1, 0.4))
sketch11.addConstraint(Sketcher.Constraint("DistanceX", 1, 1, 1, 2, 24.870866))
sketch11.addConstraint(Sketcher.Constraint("DistanceX", 0, 2, -1, 1, 12.435433))
sketch11.addConstraint(Sketcher.Constraint("DistanceY", 0, 2, -1, 1, 5.662084))
sketch11.setExpression("Constraints[8]", "Params.sketch11_height")
pocket6 = body.newObject("PartDesign::Pocket", "Pocket005")
pocket6.Profile = sketch11
pocket6.Type = "ThroughAll"

# Sketch on XY plane
sketch12 = body.newObject("Sketcher::SketchObject", "Sketch011")
sketch12.AttachmentSupport = (doc.getObject("XY_Plane"), [""])
sketch12.MapMode = "FlatFace"
sketch12.addGeometry(Part.LineSegment(App.Vector(-20.49, -5.662084, 0), App.Vector(-20.49, -6.35, 0)), False)
sketch12.addGeometry(Part.LineSegment(App.Vector(-20.49, -6.35, 0), App.Vector(20.49, -6.35, 0)), False)
sketch12.addGeometry(Part.LineSegment(App.Vector(20.49, -6.35, 0), App.Vector(20.49, -5.662084, 0)), False)
sketch12.addGeometry(Part.LineSegment(App.Vector(20.49, -5.662084, 0), App.Vector(-20.49, -5.662084, 0)), False)
sketch12.addConstraint(Sketcher.Constraint("Coincident", 0, 2, 1, 1))
sketch12.addConstraint(Sketcher.Constraint("Coincident", 1, 2, 2, 1))
sketch12.addConstraint(Sketcher.Constraint("Coincident", 2, 2, 3, 1))
sketch12.addConstraint(Sketcher.Constraint("Coincident", 3, 2, 0, 1))
sketch12.addConstraint(Sketcher.Constraint("Vertical", 0))
sketch12.addConstraint(Sketcher.Constraint("Horizontal", 1))
sketch12.addConstraint(Sketcher.Constraint("Vertical", 2))
sketch12.addConstraint(Sketcher.Constraint("Horizontal", 3))
sketch12.addConstraint(Sketcher.Constraint("DistanceX", 1, 1, 1, 2, 40.98))
sketch12.addConstraint(Sketcher.Constraint("DistanceX", 0, 2, -1, 1, 20.49))
sketch12.addConstraint(Sketcher.Constraint("DistanceY", 0, 2, -1, 1, 6.35))
sketch12.addConstraint(Sketcher.Constraint("DistanceY", 0, 2, 0, 1, 0.687916))
sketch12.setExpression("Constraints[8]", "Params.sketch12_width")
pocket7 = body.newObject("PartDesign::Pocket", "Pocket006")
pocket7.Profile = sketch12
pocket7.Type = "ThroughAll"
doc.recompute()

chamfer4 = body.newObject("PartDesign::Chamfer", "Chamfer003")
chamfer4.Base = (pocket7, edges_at(pocket7, [
    (-2.75, -1.35, -51.497),
    (4.8, -1.35, -47.622),
    (-2.75, -1.35, -43.747),
    (-10.3, -1.35, -47.622),
    (-3.707, -1.35, -104.339),
    (10.807, -1.35, -104.339),
    (10.807, -1.35, -111.504),
    (4.507, -1.35, -51.204),
    (4.507, -1.35, -44.039),
    (-10.007, -1.35, -44.039),
    (-10.007, -1.35, -51.204),
    (-3.707, -1.35, -111.504),
    (3.55, -1.35, -104.047),
    (-4, -1.35, -107.922),
    (11.1, -1.35, -107.922),
    (3.55, -1.35, -111.797),
]))
chamfer4.setExpression("Size", "Params.chamfer4_size")

doc.recompute()
